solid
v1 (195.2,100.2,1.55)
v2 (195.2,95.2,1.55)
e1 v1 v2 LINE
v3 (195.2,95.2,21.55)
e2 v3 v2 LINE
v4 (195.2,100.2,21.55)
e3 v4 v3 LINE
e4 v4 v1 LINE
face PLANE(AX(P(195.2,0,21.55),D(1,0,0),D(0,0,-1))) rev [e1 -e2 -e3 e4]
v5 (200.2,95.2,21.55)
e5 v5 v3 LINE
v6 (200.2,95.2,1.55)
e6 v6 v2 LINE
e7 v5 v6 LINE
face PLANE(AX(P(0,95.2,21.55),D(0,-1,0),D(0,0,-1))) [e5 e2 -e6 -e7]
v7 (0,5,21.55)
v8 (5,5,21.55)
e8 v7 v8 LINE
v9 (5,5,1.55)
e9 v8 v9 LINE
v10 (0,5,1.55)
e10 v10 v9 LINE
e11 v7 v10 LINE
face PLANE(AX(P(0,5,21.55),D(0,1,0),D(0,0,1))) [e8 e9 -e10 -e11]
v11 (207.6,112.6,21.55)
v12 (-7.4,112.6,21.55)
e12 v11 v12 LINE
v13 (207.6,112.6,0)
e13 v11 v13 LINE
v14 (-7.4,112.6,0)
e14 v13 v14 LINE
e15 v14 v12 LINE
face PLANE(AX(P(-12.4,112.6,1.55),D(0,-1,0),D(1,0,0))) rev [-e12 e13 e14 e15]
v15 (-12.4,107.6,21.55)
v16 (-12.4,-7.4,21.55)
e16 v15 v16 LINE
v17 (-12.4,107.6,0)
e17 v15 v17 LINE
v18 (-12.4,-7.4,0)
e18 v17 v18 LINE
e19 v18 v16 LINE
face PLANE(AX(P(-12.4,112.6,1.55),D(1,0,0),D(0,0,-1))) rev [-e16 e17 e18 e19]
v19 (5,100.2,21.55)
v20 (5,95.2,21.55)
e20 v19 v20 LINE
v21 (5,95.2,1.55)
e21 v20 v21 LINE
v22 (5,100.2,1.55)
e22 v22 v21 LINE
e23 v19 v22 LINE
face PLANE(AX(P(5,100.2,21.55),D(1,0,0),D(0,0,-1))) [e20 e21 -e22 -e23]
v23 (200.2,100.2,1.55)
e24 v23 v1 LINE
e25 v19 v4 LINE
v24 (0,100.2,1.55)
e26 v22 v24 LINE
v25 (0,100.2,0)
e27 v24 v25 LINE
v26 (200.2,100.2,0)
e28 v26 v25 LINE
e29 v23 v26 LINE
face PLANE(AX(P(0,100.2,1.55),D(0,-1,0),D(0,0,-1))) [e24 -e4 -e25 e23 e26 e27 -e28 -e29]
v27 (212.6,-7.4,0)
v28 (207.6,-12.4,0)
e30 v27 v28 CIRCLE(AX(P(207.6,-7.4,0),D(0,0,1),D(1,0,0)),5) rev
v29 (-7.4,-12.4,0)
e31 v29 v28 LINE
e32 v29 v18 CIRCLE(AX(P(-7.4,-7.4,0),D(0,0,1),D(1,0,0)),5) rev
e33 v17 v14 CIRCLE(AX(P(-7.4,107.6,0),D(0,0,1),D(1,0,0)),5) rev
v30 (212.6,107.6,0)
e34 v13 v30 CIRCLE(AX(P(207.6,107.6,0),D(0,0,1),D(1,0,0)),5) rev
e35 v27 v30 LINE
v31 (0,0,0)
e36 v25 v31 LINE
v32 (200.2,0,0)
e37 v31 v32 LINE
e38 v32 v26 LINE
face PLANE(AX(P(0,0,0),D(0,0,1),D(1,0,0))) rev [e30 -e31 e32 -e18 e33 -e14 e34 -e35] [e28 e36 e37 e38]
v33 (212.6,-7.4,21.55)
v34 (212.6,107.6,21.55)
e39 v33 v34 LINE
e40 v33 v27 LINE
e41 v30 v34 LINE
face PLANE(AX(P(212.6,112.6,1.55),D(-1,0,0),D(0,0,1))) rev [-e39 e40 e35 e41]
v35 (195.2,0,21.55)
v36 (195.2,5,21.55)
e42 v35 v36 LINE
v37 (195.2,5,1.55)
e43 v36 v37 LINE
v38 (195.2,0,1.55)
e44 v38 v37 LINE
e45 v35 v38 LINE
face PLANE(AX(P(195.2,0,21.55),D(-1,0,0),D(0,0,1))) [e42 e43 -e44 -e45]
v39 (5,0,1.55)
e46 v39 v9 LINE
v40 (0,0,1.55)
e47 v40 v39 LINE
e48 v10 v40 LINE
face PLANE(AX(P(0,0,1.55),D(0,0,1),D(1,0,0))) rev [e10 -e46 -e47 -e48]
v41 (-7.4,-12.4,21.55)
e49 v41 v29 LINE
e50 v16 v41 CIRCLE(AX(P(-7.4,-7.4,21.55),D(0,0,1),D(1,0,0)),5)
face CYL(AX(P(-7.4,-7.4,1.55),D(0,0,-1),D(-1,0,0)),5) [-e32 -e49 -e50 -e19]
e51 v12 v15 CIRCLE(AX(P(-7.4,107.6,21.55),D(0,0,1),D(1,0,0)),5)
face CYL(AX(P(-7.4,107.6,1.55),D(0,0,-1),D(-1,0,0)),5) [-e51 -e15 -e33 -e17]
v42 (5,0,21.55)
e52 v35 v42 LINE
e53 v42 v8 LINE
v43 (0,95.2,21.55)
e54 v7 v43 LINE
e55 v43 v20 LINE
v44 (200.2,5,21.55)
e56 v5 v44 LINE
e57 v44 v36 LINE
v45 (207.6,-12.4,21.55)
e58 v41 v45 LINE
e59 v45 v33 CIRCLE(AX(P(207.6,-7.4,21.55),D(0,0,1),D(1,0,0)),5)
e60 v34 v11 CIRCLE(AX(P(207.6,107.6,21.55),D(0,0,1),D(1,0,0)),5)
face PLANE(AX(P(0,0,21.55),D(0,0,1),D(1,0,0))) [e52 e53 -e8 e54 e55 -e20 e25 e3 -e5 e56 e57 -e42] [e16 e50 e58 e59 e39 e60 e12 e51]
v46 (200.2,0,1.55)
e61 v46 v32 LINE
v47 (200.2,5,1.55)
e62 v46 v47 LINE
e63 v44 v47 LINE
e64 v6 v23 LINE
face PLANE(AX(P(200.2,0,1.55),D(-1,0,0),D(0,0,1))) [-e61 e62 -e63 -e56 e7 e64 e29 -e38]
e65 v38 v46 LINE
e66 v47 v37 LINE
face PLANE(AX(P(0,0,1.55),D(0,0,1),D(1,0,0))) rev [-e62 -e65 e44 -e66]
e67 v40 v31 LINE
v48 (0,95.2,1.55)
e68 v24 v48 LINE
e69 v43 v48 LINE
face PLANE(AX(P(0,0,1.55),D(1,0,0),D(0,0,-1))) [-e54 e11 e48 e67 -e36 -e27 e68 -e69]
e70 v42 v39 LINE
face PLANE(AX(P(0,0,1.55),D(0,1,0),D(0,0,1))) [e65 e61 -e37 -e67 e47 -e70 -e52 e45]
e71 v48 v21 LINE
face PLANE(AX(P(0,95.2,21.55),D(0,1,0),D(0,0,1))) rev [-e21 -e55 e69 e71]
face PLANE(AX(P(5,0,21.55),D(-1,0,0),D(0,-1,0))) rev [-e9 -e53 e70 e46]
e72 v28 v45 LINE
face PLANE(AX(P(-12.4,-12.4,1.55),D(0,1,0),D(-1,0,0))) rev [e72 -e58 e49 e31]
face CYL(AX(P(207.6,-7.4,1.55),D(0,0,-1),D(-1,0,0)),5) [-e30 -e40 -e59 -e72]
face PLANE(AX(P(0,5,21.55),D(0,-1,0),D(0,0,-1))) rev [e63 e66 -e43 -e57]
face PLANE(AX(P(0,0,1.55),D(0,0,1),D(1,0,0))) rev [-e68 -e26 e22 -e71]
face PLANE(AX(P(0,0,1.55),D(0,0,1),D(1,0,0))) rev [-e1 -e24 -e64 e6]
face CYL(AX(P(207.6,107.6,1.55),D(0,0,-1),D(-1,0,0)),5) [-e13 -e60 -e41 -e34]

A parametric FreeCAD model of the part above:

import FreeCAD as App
import Part
import Sketcher
from FreeCAD import Vector


def edges_at(feature, points):
    """Names of the edges that pass closest to the given points."""
    edges = feature.Shape.Edges
    near = lambda p: min(range(len(edges)), key=lambda i: edges[i].distToShape(Part.Vertex(*p))[0])
    return sorted({f"Edge{near(p) + 1}" for p in points})

doc = App.newDocument("Part")
body = doc.addObject("PartDesign::Body", "Body")

sketch1 = body.newObject("Sketcher::SketchObject", "Sketch")
sketch1.AttachmentSupport = (doc.getObject("XY_Plane"), [""])
sketch1.MapMode = "FlatFace"
sketch1.addGeometry([
    Part.LineSegment(Vector(-12, 113, 0), Vector(-12, -12, 0)),
    Part.LineSegment(Vector(-12, -12, 0), Vector(213, -12, 0)),
    Part.LineSegment(Vector(213, -12, 0), Vector(213, 113, 0)),
    Part.LineSegment(Vector(213, 113, 0), Vector(-12, 113, 0)),
    Part.LineSegment(Vector(200, 0, 0), Vector(0, 0, 0)),
    Part.LineSegment(Vector(0, 0, 0), Vector(0, 100, 0)),
    Part.LineSegment(Vector(0, 100, 0), Vector(200, 100, 0)),
    Part.LineSegment(Vector(200, 100, 0), Vector(200, 0, 0)),
], False)
sketch1.addConstraint([
    Sketcher.Constraint("Coincident", 0, 2, 1, 1),
    Sketcher.Constraint("Coincident", 1, 2, 2, 1),
    Sketcher.Constraint("Coincident", 2, 2, 3, 1),
    Sketcher.Constraint("Coincident", 3, 2, 0, 1),
    Sketcher.Constraint("Coincident", 4, 2, 5, 1),
    Sketcher.Constraint("Coincident", 5, 2, 6, 1),
    Sketcher.Constraint("Coincident", 6, 2, 7, 1),
    Sketcher.Constraint("Coincident", 7, 2, 4, 1),
    Sketcher.Constraint("Vertical", 0),
    Sketcher.Constraint("Horizontal", 1),
    Sketcher.Constraint("Vertical", 2),
    Sketcher.Constraint("Horizontal", 3),
    Sketcher.Constraint("Horizontal", 4),
    Sketcher.Constraint("Vertical", 5),
    Sketcher.Constraint("Horizontal", 6),
    Sketcher.Constraint("Vertical", 7),
    Sketcher.Constraint("Coincident", 4, 2, -1, 1),
    Sketcher.Constraint("DistanceX", 1, 1, 1, 2, 225.0),
    Sketcher.Constraint("DistanceY", 0, 2, 0, 1, 125.0),
    Sketcher.Constraint("DistanceX", 4, 2, 4, 1, 200.2),
    Sketcher.Constraint("DistanceY", 5, 1, 5, 2, 100.2),
    Sketcher.Constraint("DistanceX", 0, 2, -1, 1, 12.4),
    Sketcher.Constraint("DistanceY", 0, 2, -1, 1, 12.4),
])
pad1 = body.newObject("PartDesign::Pad", "Pad")
pad1.Profile = sketch1
pad1.Length = 1.55

sketch2 = body.newObject("Sketcher::SketchObject", "Sketch001")
sketch2.AttachmentSupport = (doc.getObject("XY_Plane"), [""])
sketch2.MapMode = "FlatFace"
sketch2.AttachmentOffset = App.Placement(Vector(0, 0, 1.55), App.Rotation())
sketch2.addGeometry([
    Part.LineSegment(Vector(-12, 113, 0), Vector(-12, -12, 0)),
    Part.LineSegment(Vector(-12, -12, 0), Vector(213, -12, 0)),
    Part.LineSegment(Vector(213, -12, 0), Vector(213, 113, 0)),
    Part.LineSegment(Vector(213, 113, 0), Vector(-12, 113, 0)),
    Part.LineSegment(Vector(0, 5, 0), Vector(0, 95, 0)),
    Part.LineSegment(Vector(0, 95, 0), Vector(5, 95, 0)),
    Part.LineSegment(Vector(5, 95, 0), Vector(5, 100, 0)),
    Part.LineSegment(Vector(5, 100, 0), Vector(195, 100, 0)),
    Part.LineSegment(Vector(195, 100, 0), Vector(195, 95, 0)),
    Part.LineSegment(Vector(195, 95, 0), Vector(200, 95, 0)),
    Part.LineSegment(Vector(200, 95, 0), Vector(200, 5, 0)),
    Part.LineSegment(Vector(200, 5, 0), Vector(195, 5, 0)),
    Part.LineSegment(Vector(195, 5, 0), Vector(195, 0, 0)),
    Part.LineSegment(Vector(195, 0, 0), Vector(5, 0, 0)),
    Part.LineSegment(Vector(5, 0, 0), Vector(5, 5, 0)),
    Part.LineSegment(Vector(5, 5, 0), Vector(0, 5, 0)),
], False)
sketch2.addConstraint([
    Sketcher.Constraint("Coincident", 0, 2, 1, 1),
    Sketcher.Constraint("Coincident", 1, 2, 2, 1),
    Sketcher.Constraint("Coincident", 2, 2, 3, 1),
    Sketcher.Constraint("Coincident", 3, 2, 0, 1),
    Sketcher.Constraint("Coincident", 4, 2, 5, 1),
    Sketcher.Constraint("Coincident", 5, 2, 6, 1),
    Sketcher.Constraint("Coincident", 6, 2, 7, 1),
    Sketcher.Constraint("Coincident", 7, 2, 8, 1),
    Sketcher.Constraint("Coincident", 8, 2, 9, 1),
    Sketcher.Constraint("Coincident", 9, 2, 10, 1),
    Sketcher.Constraint("Coincident", 10, 2, 11, 1),
    Sketcher.Constraint("Coincident", 11, 2, 12, 1),
    Sketcher.Constraint("Coincident", 12, 2, 13, 1),
    Sketcher.Constraint("Coincident", 13, 2, 14, 1),
    Sketcher.Constraint("Coincident", 14, 2, 15, 1),
    Sketcher.Constraint("Coincident", 15, 2, 4, 1),
    Sketcher.Constraint("Vertical", 0),
    Sketcher.Constraint("Horizontal", 1),
    Sketcher.Constraint("Vertical", 2),
    Sketcher.Constraint("Horizontal", 3),
    Sketcher.Constraint("Vertical", 4),
    Sketcher.Constraint("Horizontal", 5),
    Sketcher.Constraint("Vertical", 6),
    Sketcher.Constraint("Horizontal", 7),
    Sketcher.Constraint("Vertical", 8),
    Sketcher.Constraint("Horizontal", 9),
    Sketcher.Constraint("Vertical", 10),
    Sketcher.Constraint("Horizontal", 11),
    Sketcher.Constraint("Vertical", 12),
    Sketcher.Constraint("Horizontal", 13),
    Sketcher.Constraint("Vertical", 14),
    Sketcher.Constraint("Horizontal", 15),
    Sketcher.Constraint("PointOnObject", 4, 2, -2),
    Sketcher.Constraint("PointOnObject", 12, 2, -1),
    Sketcher.Constraint("Horizontal", 5, 2, 8, 2),
    Sketcher.Constraint("Horizontal", 11, 2, 14, 2),
    Sketcher.Constraint("Vertical", 8, 2, 11, 2),
    Sketcher.Constraint("Vertical", 6, 2, 13, 2),
    Sketcher.Constraint("Equal", 5, 9),
    Sketcher.Constraint("Equal", 15, 6),
    Sketcher.Constraint("Equal", 8, 12),
    Sketcher.Constraint("DistanceX", 1, 1, 1, 2, 225.0),
    Sketcher.Constraint("DistanceX", 5, 1, 5, 2, 5.0),
    Sketcher.Constraint("DistanceY", 0, 2, 0, 1, 125.0),
    Sketcher.Constraint("DistanceX", 7, 1, 7, 2, 190.2),
    Sketcher.Constraint("DistanceY", 4, 1, 4, 2, 90.2),
    Sketcher.Constraint("DistanceX", 0, 2, -1, 1, 12.4),
    Sketcher.Constraint("DistanceY", 0, 2, -1, 1, 12.4),
])
pad2 = body.newObject("PartDesign::Pad", "Pad001")
pad2.Profile = sketch2
pad2.Length = 20
doc.recompute()

fillet = body.newObject("PartDesign::Fillet", "Fillet")
fillet.Base = (pad2, edges_at(pad2, [
    (-12.4, 112.6, 10.775),
    (212.6, 112.6, 10.775),
    (212.6, -12.4, 10.775),
    (-12.4, -12.4, 10.775),
]))
fillet.Radius = 5

doc.recompute()
